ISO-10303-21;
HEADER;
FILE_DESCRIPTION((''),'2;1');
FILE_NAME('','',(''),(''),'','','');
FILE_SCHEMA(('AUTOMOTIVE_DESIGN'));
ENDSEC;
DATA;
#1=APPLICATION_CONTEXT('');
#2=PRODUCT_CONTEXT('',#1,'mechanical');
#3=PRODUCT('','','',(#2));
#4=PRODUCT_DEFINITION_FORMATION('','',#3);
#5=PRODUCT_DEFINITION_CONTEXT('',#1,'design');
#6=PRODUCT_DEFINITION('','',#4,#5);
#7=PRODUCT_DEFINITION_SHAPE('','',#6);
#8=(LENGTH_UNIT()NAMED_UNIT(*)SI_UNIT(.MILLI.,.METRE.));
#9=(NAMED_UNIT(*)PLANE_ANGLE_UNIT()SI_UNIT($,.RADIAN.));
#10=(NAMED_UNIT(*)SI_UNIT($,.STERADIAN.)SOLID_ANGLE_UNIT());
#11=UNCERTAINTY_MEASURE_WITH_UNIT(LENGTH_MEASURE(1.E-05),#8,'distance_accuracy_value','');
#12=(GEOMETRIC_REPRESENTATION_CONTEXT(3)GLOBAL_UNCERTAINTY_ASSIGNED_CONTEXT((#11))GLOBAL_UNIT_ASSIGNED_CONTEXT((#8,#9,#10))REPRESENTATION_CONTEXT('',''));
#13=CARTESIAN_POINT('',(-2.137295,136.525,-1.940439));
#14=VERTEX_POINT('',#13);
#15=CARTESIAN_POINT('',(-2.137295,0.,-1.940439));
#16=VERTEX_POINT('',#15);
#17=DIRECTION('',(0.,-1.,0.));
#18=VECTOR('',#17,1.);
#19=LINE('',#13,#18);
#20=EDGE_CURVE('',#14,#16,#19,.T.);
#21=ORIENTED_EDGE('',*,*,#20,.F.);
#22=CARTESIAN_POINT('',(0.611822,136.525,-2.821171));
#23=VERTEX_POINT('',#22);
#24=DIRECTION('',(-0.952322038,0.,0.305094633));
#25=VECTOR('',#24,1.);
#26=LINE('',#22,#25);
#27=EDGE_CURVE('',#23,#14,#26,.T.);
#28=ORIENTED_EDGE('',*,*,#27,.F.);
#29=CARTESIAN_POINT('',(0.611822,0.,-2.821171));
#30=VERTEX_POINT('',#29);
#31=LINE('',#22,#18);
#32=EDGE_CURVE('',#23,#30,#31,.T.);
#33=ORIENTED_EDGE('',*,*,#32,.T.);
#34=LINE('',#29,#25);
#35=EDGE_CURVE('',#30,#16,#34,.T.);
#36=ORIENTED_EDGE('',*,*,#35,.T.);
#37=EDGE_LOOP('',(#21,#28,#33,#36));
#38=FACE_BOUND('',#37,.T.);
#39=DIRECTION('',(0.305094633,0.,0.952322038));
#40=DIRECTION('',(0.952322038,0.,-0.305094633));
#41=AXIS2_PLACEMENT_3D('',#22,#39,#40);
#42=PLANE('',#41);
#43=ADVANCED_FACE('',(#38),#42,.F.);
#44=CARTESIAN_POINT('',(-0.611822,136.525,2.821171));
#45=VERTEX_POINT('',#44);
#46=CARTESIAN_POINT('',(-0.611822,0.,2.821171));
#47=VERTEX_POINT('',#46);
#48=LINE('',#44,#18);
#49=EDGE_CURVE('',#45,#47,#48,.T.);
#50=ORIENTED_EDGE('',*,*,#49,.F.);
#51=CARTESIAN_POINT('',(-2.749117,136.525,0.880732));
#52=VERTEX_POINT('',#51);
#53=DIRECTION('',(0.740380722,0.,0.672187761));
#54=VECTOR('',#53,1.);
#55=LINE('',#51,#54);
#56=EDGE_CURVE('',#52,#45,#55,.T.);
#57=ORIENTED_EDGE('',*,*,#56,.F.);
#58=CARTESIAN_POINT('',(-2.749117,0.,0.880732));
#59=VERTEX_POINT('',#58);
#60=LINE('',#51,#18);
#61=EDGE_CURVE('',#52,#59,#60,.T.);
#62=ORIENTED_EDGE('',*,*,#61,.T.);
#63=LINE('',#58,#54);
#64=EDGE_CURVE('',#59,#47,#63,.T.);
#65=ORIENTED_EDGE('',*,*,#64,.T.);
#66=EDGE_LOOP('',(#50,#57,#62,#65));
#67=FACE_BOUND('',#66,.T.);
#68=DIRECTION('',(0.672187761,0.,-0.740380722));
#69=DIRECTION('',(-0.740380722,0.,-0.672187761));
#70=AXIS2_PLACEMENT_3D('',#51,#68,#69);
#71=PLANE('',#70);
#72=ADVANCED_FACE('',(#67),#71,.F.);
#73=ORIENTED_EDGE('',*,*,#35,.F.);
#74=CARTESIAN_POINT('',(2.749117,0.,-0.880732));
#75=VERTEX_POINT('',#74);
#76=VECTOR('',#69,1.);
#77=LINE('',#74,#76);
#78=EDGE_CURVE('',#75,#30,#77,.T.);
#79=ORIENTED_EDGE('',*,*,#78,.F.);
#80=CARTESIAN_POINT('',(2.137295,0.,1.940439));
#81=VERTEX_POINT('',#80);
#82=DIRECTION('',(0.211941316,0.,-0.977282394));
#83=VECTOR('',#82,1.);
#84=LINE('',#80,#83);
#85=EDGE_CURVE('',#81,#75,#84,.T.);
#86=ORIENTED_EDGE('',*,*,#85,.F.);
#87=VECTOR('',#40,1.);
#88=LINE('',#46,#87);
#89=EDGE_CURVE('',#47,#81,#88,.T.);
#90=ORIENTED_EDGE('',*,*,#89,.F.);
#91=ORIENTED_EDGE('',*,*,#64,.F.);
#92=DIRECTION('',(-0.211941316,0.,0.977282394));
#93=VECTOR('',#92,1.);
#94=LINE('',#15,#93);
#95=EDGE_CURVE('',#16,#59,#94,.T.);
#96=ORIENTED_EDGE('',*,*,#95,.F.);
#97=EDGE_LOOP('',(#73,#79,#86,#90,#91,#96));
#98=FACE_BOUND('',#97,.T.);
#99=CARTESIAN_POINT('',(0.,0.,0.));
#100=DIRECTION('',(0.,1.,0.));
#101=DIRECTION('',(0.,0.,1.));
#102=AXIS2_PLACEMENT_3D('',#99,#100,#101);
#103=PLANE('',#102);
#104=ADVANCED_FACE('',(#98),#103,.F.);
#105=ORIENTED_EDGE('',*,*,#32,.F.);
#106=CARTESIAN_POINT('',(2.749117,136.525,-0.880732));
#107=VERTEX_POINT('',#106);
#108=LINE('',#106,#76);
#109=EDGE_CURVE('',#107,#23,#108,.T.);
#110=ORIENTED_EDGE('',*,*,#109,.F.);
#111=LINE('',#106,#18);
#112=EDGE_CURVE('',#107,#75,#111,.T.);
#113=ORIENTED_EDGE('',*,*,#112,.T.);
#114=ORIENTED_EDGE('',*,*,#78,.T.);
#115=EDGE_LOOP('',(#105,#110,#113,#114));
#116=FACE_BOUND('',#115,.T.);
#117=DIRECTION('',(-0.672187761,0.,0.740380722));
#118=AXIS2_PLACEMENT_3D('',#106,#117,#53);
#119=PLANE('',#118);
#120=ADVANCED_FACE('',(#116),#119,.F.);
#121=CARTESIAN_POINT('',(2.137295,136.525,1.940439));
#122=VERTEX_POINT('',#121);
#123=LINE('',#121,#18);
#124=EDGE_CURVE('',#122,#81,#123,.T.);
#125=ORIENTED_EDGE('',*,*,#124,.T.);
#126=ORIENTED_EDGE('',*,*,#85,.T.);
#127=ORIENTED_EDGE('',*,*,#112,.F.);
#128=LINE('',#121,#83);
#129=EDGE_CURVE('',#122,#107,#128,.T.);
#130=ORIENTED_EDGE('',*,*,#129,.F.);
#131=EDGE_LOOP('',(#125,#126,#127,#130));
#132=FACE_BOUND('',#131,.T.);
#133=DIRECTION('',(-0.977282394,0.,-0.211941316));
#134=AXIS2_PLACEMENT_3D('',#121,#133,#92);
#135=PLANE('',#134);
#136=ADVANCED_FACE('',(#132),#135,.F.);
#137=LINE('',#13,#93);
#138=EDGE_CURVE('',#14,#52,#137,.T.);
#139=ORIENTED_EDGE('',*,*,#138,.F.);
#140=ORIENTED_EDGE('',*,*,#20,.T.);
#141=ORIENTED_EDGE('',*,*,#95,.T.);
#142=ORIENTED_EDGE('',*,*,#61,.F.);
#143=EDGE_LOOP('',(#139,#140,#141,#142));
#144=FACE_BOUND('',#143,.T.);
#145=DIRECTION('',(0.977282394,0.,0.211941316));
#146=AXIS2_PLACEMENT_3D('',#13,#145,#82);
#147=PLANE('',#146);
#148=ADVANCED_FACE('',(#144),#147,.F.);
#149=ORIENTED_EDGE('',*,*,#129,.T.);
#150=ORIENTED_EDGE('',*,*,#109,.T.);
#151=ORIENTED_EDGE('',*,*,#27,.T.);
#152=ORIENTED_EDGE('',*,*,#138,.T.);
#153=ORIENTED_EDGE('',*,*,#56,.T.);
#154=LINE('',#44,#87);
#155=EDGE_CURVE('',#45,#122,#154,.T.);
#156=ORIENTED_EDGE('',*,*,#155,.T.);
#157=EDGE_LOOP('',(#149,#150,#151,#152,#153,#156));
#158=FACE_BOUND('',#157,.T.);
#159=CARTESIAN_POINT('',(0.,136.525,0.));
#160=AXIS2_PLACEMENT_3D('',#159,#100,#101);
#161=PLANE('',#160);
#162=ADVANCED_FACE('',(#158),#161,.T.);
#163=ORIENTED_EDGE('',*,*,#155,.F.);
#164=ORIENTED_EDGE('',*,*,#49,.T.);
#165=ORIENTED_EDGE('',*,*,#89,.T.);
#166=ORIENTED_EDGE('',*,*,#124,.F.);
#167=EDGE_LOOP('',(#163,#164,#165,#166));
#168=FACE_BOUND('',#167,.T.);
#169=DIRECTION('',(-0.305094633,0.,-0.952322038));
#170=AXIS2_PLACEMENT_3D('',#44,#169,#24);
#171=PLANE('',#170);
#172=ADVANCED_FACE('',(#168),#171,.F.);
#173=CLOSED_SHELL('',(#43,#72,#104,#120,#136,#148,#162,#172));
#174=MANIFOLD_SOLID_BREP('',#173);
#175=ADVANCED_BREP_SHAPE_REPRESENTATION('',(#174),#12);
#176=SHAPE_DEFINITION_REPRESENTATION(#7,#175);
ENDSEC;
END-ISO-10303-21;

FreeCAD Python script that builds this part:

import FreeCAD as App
import Part
import Sketcher
Q = App.Units.Quantity

doc = App.newDocument("Part")
params = doc.addObject("Spreadsheet::Sheet", "Params")
for row, (alias, value) in enumerate([
    ("pad1_length", "5.375 in"),
], start=1):
    params.set(f"A{row}", alias)
    params.set(f"B{row}", "=" + value)
    params.setAlias(f"B{row}", alias)

body = doc.addObject("PartDesign::Body", "Body")

# Sketch on XZ plane
sketch1 = doc.addObject("Sketcher::SketchObject", "Sketch")
body.addObject(sketch1)
sketch1.AttachmentSupport = (doc.XZ_Plane, [""])
sketch1.MapMode = "FlatFace"
sketch1.addGeometry(Part.LineSegment(App.Vector(2.1, 1.9, 0), App.Vector(2.7, -0.9, 0)), False)
sketch1.addGeometry(Part.LineSegment(App.Vector(2.7, -0.9, 0), App.Vector(0.6, -2.8, 0)), False)
sketch1.addGeometry(Part.LineSegment(App.Vector(0.6, -2.8, 0), App.Vector(-2.1, -1.9, 0)), False)
sketch1.addGeometry(Part.LineSegment(App.Vector(-2.1, -1.9, 0), App.Vector(-2.7, 0.9, 0)), False)
sketch1.addGeometry(Part.LineSegment(App.Vector(-2.7, 0.9, 0), App.Vector(-0.6, 2.8, 0)), False)
sketch1.addGeometry(Part.LineSegment(App.Vector(-0.6, 2.8, 0), App.Vector(2.1, 1.9, 0)), False)
sketch1.addConstraint(Sketcher.Constraint("Coincident", 0, 2, 1, 1))
sketch1.addConstraint(Sketcher.Constraint("Coincident", 1, 2, 2, 1))
sketch1.addConstraint(Sketcher.Constraint("Coincident", 2, 2, 3, 1))
sketch1.addConstraint(Sketcher.Constraint("Coincident", 3, 2, 4, 1))
sketch1.addConstraint(Sketcher.Constraint("Coincident", 4, 2, 5, 1))
sketch1.addConstraint(Sketcher.Constraint("Coincident", 5, 2, 0, 1))
sketch1.addConstraint(Sketcher.Constraint("Symmetric", 0, 2, 3, 2, -1, 1))
sketch1.addConstraint(Sketcher.Constraint("Symmetric", 1, 2, 4, 2, -1, 1))
sketch1.addConstraint(Sketcher.Constraint("Symmetric", 2, 2, 5, 2, -1, 1))
sketch1.addConstraint(Sketcher.Constraint("Equal", 0, 1))
sketch1.addConstraint(Sketcher.Constraint("Equal", 1, 2))
sketch1.addConstraint(Sketcher.Constraint("Distance", 0, Q("2.886751 mm")))
sketch1.addConstraint(Sketcher.Constraint("DistanceX", -1, 1, 1, 2, Q("0.611822 mm")))
sketch1.addConstraint(Sketcher.Constraint("DistanceY", 1, 2, -1, 1, Q("2.821171 mm")))
sketch1.addConstraint(Sketcher.Constraint("DistanceY", 2, 2, -1, 1, Q("1.940439 mm")))
pad1 = doc.addObject("PartDesign::Pad", "Pad")
body.addObject(pad1)
pad1.Profile = sketch1
pad1.setExpression("Length", "Params.pad1_length")
pad1.Reversed = True

doc.recompute()
